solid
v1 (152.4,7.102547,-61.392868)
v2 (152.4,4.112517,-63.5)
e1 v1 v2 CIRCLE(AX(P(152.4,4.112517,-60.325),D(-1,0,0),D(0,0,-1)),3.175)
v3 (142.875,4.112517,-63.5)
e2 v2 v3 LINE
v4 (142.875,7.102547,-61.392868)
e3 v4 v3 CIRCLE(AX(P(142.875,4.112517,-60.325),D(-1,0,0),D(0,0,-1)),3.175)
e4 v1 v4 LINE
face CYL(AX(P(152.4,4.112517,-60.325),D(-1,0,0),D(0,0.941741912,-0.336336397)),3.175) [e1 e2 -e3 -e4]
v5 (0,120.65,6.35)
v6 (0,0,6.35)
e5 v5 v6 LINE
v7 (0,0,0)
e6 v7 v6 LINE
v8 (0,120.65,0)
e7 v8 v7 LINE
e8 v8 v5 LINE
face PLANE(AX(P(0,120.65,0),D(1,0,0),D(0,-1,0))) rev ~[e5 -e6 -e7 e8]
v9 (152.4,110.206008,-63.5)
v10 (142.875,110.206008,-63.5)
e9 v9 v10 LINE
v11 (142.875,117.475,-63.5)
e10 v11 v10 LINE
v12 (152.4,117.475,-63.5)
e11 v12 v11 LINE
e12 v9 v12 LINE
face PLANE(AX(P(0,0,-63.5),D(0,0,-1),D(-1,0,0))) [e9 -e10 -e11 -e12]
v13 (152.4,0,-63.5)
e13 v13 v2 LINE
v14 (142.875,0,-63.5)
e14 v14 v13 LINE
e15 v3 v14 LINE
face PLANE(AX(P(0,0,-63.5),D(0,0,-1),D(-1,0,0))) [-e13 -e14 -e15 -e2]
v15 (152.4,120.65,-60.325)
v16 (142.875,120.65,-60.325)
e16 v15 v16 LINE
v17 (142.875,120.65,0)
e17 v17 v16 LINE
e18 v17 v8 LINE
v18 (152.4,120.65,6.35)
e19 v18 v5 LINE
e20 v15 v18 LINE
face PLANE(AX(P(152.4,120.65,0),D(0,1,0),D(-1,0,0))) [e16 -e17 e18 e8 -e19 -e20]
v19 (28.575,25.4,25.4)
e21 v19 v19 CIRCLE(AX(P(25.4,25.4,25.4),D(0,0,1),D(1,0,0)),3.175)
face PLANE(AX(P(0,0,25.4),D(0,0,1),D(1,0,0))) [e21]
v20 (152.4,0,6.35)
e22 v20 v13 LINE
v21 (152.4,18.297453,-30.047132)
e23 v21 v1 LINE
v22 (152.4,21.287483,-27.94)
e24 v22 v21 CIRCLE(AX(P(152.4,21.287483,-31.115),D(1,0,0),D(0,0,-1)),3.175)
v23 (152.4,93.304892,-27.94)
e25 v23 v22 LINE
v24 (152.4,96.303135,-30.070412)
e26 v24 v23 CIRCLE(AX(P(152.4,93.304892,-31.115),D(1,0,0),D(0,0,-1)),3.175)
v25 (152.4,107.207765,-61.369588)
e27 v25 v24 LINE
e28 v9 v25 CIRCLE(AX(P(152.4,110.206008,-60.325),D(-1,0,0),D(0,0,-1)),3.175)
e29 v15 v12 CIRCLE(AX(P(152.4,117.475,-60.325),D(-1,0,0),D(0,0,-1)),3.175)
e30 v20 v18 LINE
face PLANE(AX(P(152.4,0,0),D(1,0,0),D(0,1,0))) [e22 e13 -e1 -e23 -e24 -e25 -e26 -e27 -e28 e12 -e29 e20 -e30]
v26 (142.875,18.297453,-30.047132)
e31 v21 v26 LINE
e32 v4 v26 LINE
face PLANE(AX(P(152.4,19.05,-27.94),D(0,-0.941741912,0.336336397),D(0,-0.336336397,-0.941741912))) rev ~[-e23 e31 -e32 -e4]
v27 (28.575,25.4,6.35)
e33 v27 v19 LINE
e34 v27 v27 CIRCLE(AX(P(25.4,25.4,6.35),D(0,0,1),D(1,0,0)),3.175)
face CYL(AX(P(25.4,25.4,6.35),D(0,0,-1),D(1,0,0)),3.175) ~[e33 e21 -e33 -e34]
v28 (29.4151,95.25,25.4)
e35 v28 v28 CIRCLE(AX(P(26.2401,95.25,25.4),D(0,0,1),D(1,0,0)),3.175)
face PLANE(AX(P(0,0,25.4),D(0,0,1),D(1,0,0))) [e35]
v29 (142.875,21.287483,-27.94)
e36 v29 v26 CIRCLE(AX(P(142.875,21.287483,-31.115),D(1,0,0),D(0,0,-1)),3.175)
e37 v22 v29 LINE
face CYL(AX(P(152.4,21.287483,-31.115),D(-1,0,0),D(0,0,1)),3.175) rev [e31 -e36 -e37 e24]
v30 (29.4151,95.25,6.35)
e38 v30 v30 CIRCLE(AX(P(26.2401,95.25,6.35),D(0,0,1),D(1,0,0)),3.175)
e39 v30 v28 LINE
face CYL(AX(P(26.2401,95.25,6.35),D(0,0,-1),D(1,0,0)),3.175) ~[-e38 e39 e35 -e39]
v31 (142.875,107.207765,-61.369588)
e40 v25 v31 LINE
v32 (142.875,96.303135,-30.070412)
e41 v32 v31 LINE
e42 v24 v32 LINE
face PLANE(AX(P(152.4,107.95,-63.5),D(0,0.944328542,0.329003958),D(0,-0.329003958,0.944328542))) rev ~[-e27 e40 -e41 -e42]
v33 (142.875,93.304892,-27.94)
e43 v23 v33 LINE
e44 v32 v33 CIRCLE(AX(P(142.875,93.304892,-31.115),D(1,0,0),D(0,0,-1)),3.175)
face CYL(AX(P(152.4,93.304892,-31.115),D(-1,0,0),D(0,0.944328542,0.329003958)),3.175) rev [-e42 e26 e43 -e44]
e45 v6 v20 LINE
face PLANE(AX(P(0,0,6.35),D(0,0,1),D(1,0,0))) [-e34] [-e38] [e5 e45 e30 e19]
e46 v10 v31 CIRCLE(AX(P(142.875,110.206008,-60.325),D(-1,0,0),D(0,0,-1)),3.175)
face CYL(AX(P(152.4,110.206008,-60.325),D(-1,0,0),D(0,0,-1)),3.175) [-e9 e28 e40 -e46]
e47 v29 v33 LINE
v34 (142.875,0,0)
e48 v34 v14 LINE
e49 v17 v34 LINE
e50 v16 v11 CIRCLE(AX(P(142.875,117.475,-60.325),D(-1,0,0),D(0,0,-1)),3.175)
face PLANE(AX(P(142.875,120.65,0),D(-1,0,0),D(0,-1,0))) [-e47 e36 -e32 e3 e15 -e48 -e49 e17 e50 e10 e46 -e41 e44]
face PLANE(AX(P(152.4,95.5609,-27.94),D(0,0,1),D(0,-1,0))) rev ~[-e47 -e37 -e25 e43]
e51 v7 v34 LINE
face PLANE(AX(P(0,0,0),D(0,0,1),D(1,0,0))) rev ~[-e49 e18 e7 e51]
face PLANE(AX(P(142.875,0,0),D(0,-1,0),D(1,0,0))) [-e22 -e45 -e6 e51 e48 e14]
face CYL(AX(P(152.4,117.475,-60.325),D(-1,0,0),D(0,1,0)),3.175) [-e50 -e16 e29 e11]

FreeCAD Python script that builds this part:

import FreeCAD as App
import Part
import Sketcher
Q = App.Units.Quantity


def edges_at(feature, points):
    """Names of the edges that pass closest to the given points."""
    edges = feature.Shape.Edges
    near = lambda p: min(range(len(edges)), key=lambda i: edges[i].distToShape(Part.Vertex(*p))[0])
    return sorted({f"Edge{near(p) + 1}" for p in points})

doc = App.newDocument("Part")
params = doc.addObject("Spreadsheet::Sheet", "Params")
for row, (alias, value) in enumerate([
    ("sketch1_width", "6 in"),
    ("sketch1_height", "4.75 in"),
    ("pad1_length", "0.25 in"),
    ("sketch2_diameter", "0.25 in"),
    ("pad2_length", "0.75 in"),
    ("sketch3_width", "0.375 in"),
    ("sketch3_height", "4.75 in"),
    ("pad3_length", "2.5 in"),
    ("sketch4_width", "4 in"),
    ("pocket1_length", "2.5 in"),
    ("fillet_radius", "0.125 in"),
], start=1):
    params.set(f"A{row}", alias)
    params.set(f"B{row}", "=" + value)
    params.setAlias(f"B{row}", alias)

body = doc.addObject("PartDesign::Body", "Body")

# Sketch on XY plane
sketch1 = doc.addObject("Sketcher::SketchObject", "Sketch")
body.addObject(sketch1)
sketch1.AttachmentSupport = (doc.XY_Plane, [""])
sketch1.MapMode = "FlatFace"
sketch1.addGeometry([
    Part.LineSegment(App.Vector(0, 121, 0), App.Vector(0, 0, 0)),
    Part.LineSegment(App.Vector(0, 0, 0), App.Vector(152, 0, 0)),
    Part.LineSegment(App.Vector(152, 0, 0), App.Vector(152, 121, 0)),
    Part.LineSegment(App.Vector(152, 121, 0), App.Vector(0, 121, 0)),
], False)
sketch1.addConstraint([
    Sketcher.Constraint("Coincident", 0, 2, 1, 1),
    Sketcher.Constraint("Coincident", 1, 2, 2, 1),
    Sketcher.Constraint("Coincident", 2, 2, 3, 1),
    Sketcher.Constraint("Coincident", 3, 2, 0, 1),
    Sketcher.Constraint("Vertical", 0),
    Sketcher.Constraint("Horizontal", 1),
    Sketcher.Constraint("Vertical", 2),
    Sketcher.Constraint("Horizontal", 3),
    Sketcher.Constraint("Coincident", 0, 2, -1, 1),
    Sketcher.Constraint("DistanceX", 1, 1, 1, 2, Q("6 in")),
    Sketcher.Constraint("DistanceY", 0, 2, 0, 1, Q("4.75 in")),
])
sketch1.setExpression("Constraints[9]", "Params.sketch1_width")
sketch1.setExpression("Constraints[10]", "Params.sketch1_height")
pad1 = doc.addObject("PartDesign::Pad", "Pad")
body.addObject(pad1)
pad1.Profile = sketch1
pad1.setExpression("Length", "Params.pad1_length")

# Sketch on XY plane
sketch2 = doc.addObject("Sketcher::SketchObject", "Sketch001")
body.addObject(sketch2)
sketch2.AttachmentSupport = (doc.XY_Plane, [""])
sketch2.MapMode = "FlatFace"
sketch2.AttachmentOffset = App.Placement(App.Vector(0, 0, 0.25 * 25.4), App.Rotation())
sketch2.addGeometry([
    Part.Circle(App.Vector(25.4, 25.4, 0), App.Vector(0, 0, 1), 3.2),
    Part.Circle(App.Vector(26.2, 95.2, 0), App.Vector(0, 0, 1), 3.2),
], False)
sketch2.addConstraint([
    Sketcher.Constraint("Equal", 0, 1),
    Sketcher.Constraint("Diameter", 0, Q("0.25 in")),
    Sketcher.Constraint("DistanceX", -1, 1, 0, 3, Q("1 in")),
    Sketcher.Constraint("DistanceY", -1, 1, 0, 3, Q("1 in")),
    Sketcher.Constraint("DistanceY", 0, 3, 1, 3, Q("2.75 in")),
    Sketcher.Constraint("DistanceX", -1, 1, 1, 3, Q("26.24 mm")),
])
sketch2.setExpression("Constraints[1]", "Params.sketch2_diameter")
pad2 = doc.addObject("PartDesign::Pad", "Pad001")
body.addObject(pad2)
pad2.Profile = sketch2
pad2.setExpression("Length", "Params.pad2_length")

# Sketch on XY plane
sketch3 = doc.addObject("Sketcher::SketchObject", "Sketch002")
body.addObject(sketch3)
sketch3.AttachmentSupport = (doc.XY_Plane, [""])
sketch3.MapMode = "FlatFace"
sketch3.addGeometry([
    Part.LineSegment(App.Vector(152, 121, 0), App.Vector(152, 0, 0)),
    Part.LineSegment(App.Vector(152, 0, 0), App.Vector(143, 0, 0)),
    Part.LineSegment(App.Vector(143, 0, 0), App.Vector(143, 121, 0)),
    Part.LineSegment(App.Vector(143, 121, 0), App.Vector(152, 121, 0)),
], False)
sketch3.addConstraint([
    Sketcher.Constraint("Coincident", 0, 2, 1, 1),
    Sketcher.Constraint("Coincident", 1, 2, 2, 1),
    Sketcher.Constraint("Coincident", 2, 2, 3, 1),
    Sketcher.Constraint("Coincident", 3, 2, 0, 1),
    Sketcher.Constraint("Vertical", 0),
    Sketcher.Constraint("Horizontal", 1),
    Sketcher.Constraint("Vertical", 2),
    Sketcher.Constraint("Horizontal", 3),
    Sketcher.Constraint("PointOnObject", 0, 2, -1),
    Sketcher.Constraint("DistanceX", 1, 2, 1, 1, Q("0.375 in")),
    Sketcher.Constraint("DistanceX", -1, 1, 0, 2, Q("6 in")),
    Sketcher.Constraint("DistanceY", 0, 2, 0, 1, Q("4.75 in")),
])
sketch3.setExpression("Constraints[9]", "Params.sketch3_width")
sketch3.setExpression("Constraints[11]", "Params.sketch3_height")
pad3 = doc.addObject("PartDesign::Pad", "Pad002")
body.addObject(pad3)
pad3.Profile = sketch3
pad3.setExpression("Length", "Params.pad3_length")
pad3.Reversed = True

# Sketch on YZ plane
sketch4 = doc.addObject("Sketcher::SketchObject", "Sketch003")
body.addObject(sketch4)
sketch4.AttachmentSupport = (doc.YZ_Plane, [""])
sketch4.MapMode = "FlatFace"
sketch4.AttachmentOffset = App.Placement(App.Vector(0, 0, 6 * 25.4), App.Rotation())
sketch4.addGeometry([
    Part.LineSegment(App.Vector(19, -28, 0), App.Vector(6, -64, 0)),
    Part.LineSegment(App.Vector(6, -64, 0), App.Vector(108, -64, 0)),
    Part.LineSegment(App.Vector(108, -64, 0), App.Vector(96, -28, 0)),
    Part.LineSegment(App.Vector(96, -28, 0), App.Vector(19, -28, 0)),
], False)
sketch4.addConstraint([
    Sketcher.Constraint("Coincident", 0, 2, 1, 1),
    Sketcher.Constraint("Coincident", 1, 2, 2, 1),
    Sketcher.Constraint("Coincident", 2, 2, 3, 1),
    Sketcher.Constraint("Coincident", 3, 2, 0, 1),
    Sketcher.Constraint("Horizontal", 1),
    Sketcher.Constraint("Horizontal", 3),
    Sketcher.Constraint("DistanceX", 0, 2, 3, 2, Q("0.5 in")),
    Sketcher.Constraint("DistanceX", 1, 1, 1, 2, Q("4 in")),
    Sketcher.Constraint("DistanceY", 0, 2, -1, 1, Q("2.5 in")),
    Sketcher.Constraint("DistanceY", 2, 2, -1, 1, Q("1.1 in")),
    Sketcher.Constraint("DistanceX", -1, 1, 0, 2, Q("0.25 in")),
    Sketcher.Constraint("DistanceX", 3, 2, 3, 1, Q("76.511 mm")),
])
sketch4.setExpression("Constraints[7]", "Params.sketch4_width")
pocket1 = doc.addObject("PartDesign::Pocket", "Pocket")
body.addObject(pocket1)
pocket1.Profile = sketch4
pocket1.setExpression("Length", "Params.pocket1_length")
doc.recompute()

fillet = doc.addObject("PartDesign::Fillet", "Fillet")
body.addObject(fillet)
fillet.Base = (pocket1, edges_at(pocket1, [
    (147.637, 120.65, -63.5),
    (147.637, 107.95, -63.5),
    (147.637, 95.561, -27.94),
    (147.637, 19.05, -27.94),
    (147.637, 6.35, -63.5),
]))
fillet.setExpression("Radius", "Params.fillet_radius")

doc.recompute()
